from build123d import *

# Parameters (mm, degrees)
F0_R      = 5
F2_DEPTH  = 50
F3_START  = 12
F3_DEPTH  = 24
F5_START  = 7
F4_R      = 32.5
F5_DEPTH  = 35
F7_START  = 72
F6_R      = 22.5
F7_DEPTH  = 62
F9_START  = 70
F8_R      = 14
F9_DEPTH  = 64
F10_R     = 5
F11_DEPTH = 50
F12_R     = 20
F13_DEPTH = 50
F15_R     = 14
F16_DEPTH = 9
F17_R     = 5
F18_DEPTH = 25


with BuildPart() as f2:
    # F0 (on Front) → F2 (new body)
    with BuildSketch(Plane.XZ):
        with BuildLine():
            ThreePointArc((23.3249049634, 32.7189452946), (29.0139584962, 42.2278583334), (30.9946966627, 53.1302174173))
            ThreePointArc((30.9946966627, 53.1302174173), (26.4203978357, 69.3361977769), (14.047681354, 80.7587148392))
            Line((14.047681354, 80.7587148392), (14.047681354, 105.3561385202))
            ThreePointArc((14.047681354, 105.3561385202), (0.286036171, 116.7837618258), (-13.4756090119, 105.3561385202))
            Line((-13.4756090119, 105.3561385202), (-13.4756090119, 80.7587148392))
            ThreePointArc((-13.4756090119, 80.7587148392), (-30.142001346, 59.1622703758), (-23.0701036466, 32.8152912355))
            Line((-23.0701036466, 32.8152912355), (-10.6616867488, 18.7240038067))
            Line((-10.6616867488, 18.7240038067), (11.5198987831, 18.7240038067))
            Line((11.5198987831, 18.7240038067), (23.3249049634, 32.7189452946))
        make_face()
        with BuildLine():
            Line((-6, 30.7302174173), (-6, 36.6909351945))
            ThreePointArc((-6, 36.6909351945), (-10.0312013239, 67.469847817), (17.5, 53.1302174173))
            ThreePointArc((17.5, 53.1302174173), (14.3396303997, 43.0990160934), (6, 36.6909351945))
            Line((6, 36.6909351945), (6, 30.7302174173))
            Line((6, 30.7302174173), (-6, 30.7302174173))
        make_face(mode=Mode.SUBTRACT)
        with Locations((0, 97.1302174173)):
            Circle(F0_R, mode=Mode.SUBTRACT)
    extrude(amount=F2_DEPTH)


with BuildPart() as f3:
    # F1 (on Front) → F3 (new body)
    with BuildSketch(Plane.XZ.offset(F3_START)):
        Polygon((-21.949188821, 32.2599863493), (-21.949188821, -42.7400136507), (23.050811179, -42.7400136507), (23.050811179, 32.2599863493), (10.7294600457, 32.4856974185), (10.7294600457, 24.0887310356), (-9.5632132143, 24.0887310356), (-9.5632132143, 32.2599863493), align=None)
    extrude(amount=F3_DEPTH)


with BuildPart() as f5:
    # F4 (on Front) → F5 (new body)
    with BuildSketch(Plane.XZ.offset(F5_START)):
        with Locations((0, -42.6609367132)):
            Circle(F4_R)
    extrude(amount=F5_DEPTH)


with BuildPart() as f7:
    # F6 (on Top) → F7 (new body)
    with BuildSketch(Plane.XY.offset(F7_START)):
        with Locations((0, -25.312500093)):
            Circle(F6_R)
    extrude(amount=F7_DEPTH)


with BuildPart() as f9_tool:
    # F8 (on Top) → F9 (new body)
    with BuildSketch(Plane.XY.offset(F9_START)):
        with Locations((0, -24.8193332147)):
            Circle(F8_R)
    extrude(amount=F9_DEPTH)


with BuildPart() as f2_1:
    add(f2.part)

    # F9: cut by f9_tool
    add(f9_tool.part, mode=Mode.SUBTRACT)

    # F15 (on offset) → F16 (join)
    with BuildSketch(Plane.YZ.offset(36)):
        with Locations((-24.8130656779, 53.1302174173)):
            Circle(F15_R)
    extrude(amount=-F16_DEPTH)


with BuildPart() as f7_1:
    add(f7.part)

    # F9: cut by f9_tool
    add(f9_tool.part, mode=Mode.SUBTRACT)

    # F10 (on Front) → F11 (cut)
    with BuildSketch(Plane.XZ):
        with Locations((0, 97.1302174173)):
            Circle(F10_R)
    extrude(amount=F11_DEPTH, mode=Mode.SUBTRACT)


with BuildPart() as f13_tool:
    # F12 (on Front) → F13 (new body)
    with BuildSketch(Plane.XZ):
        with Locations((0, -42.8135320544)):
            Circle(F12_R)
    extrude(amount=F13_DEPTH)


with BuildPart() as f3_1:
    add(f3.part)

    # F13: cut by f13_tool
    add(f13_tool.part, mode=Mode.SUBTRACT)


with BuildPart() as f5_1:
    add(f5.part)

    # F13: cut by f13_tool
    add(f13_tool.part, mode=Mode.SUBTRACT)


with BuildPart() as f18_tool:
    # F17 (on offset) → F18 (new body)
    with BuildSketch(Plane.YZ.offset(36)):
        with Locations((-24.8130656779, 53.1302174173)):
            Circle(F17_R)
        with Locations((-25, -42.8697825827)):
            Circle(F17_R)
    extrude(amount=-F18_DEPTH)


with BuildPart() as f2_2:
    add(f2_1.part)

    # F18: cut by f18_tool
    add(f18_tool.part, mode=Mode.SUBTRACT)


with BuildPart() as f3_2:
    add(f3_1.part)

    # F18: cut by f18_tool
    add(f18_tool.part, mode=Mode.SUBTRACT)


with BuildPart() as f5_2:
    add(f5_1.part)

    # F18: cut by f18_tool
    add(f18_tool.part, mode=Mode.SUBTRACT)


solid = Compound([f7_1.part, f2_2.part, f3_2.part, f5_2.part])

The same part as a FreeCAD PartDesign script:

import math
import FreeCAD as App
import Part
import Sketcher
from FreeCAD import Vector
Q = App.Units.Quantity

doc = App.newDocument("Part")
body = doc.addObject("PartDesign::Body", "Body")

# Sketch on XZ plane
sketch1 = body.newObject("Sketcher::SketchObject", "Sketch")
sketch1.AttachmentSupport = (doc.getObject("XZ_Plane"), [""])
sketch1.MapMode = "FlatFace"
sketch1.addGeometry(Part.ArcOfCircle(Part.Circle(Vector(0, 53, 0), Vector(0, 0, 1), 31), math.radians(-41), math.radians(0)), False)
sketch1.addGeometry(Part.ArcOfCircle(Part.Circle(Vector(0, 53, 0), Vector(0, 0, 1), 31), math.radians(0), math.radians(63)), False)
sketch1.addGeometry(Part.LineSegment(Vector(14, 81, 0), Vector(14, 105, 0)), False)
sketch1.addGeometry(Part.ArcOfCircle(Part.Circle(Vector(0, 103, 0), Vector(0, 0, 1), 14), math.radians(11), math.radians(169)), False)
sketch1.addGeometry(Part.LineSegment(Vector(-13, 105, 0), Vector(-13, 81, 0)), False)
sketch1.addGeometry(Part.ArcOfCircle(Part.Circle(Vector(0, 53, 0), Vector(0, 0, 1), 31), math.radians(116), math.radians(221)), False)
sketch1.addGeometry(Part.LineSegment(Vector(-23, 33, 0), Vector(-11, 19, 0)), False)
sketch1.addGeometry(Part.LineSegment(Vector(-11, 19, 0), Vector(12, 19, 0)), False)
sketch1.addGeometry(Part.LineSegment(Vector(12, 19, 0), Vector(23, 33, 0)), False)
sketch1.addGeometry(Part.LineSegment(Vector(6, 31, 0), Vector(-6, 31, 0)), False)
sketch1.addGeometry(Part.LineSegment(Vector(-6, 31, 0), Vector(-6, 37, 0)), False)
sketch1.addGeometry(Part.ArcOfCircle(Part.Circle(Vector(0, 53, 0), Vector(0, 0, 1), 18), math.radians(0), math.radians(250)), False)
sketch1.addGeometry(Part.ArcOfCircle(Part.Circle(Vector(0, 53, 0), Vector(0, 0, 1), 18), math.radians(-70), math.radians(0)), False)
sketch1.addGeometry(Part.LineSegment(Vector(6, 37, 0), Vector(6, 31, 0)), False)
sketch1.addGeometry(Part.Circle(Vector(0, 97, 0), Vector(0, 0, 1), 5), False)
sketch1.addConstraint(Sketcher.Constraint("Tangent", 0, 2, 1, 1))
sketch1.addConstraint(Sketcher.Constraint("Coincident", 1, 2, 2, 1))
sketch1.addConstraint(Sketcher.Constraint("Coincident", 2, 2, 3, 1))
sketch1.addConstraint(Sketcher.Constraint("Coincident", 3, 2, 4, 1))
sketch1.addConstraint(Sketcher.Constraint("Coincident", 4, 2, 5, 1))
sketch1.addConstraint(Sketcher.Constraint("Tangent", 5, 2, 6, 1))
sketch1.addConstraint(Sketcher.Constraint("Coincident", 6, 2, 7, 1))
sketch1.addConstraint(Sketcher.Constraint("Coincident", 7, 2, 8, 1))
sketch1.addConstraint(Sketcher.Constraint("Coincident", 8, 2, 0, 1))
sketch1.addConstraint(Sketcher.Constraint("Coincident", 9, 2, 10, 1))
sketch1.addConstraint(Sketcher.Constraint("Coincident", 10, 2, 11, 2))
sketch1.addConstraint(Sketcher.Constraint("Tangent", 11, 1, 12, 2))
sketch1.addConstraint(Sketcher.Constraint("Coincident", 12, 1, 13, 1))
sketch1.addConstraint(Sketcher.Constraint("Coincident", 13, 2, 9, 1))
sketch1.addConstraint(Sketcher.Constraint("Vertical", 2))
sketch1.addConstraint(Sketcher.Constraint("Vertical", 4))
sketch1.addConstraint(Sketcher.Constraint("Horizontal", 7))
sketch1.addConstraint(Sketcher.Constraint("Horizontal", 9))
sketch1.addConstraint(Sketcher.Constraint("Vertical", 10))
sketch1.addConstraint(Sketcher.Constraint("Vertical", 13))
sketch1.addConstraint(Sketcher.Constraint("Coincident", 5, 3, 0, 3))
sketch1.addConstraint(Sketcher.Constraint("Coincident", 11, 3, 0, 3))
sketch1.addConstraint(Sketcher.Constraint("Equal", 0, 1))
sketch1.addConstraint(Sketcher.Constraint("Equal", 11, 12))
sketch1.addConstraint(Sketcher.Constraint("Symmetric", 10, 2, 12, 1, -2))
sketch1.addConstraint(Sketcher.Constraint("PointOnObject", 14, 3, -2))
sketch1.addConstraint(Sketcher.Constraint("Horizontal", 12, 3, 0, 2))
sketch1.addConstraint(Sketcher.Constraint("Horizontal", 2, 2, 3, 2))
sketch1.addConstraint(Sketcher.Constraint("Horizontal", 1, 2, 4, 2))
sketch1.addConstraint(Sketcher.Constraint("Horizontal", 0, 2, 11, 1))
sketch1.addConstraint(Sketcher.Constraint("Diameter", 14, Q("10 mm")))
sketch1.addConstraint(Sketcher.Constraint("Radius", 3, Q("14 mm")))
sketch1.addConstraint(Sketcher.Constraint("Radius", 11, Q("17.5 mm")))
sketch1.addConstraint(Sketcher.Constraint("DistanceX", 9, 2, 9, 1, Q("12 mm")))
sketch1.addConstraint(Sketcher.Constraint("DistanceY", 0, 3, 14, 3, Q("44 mm")))
sketch1.addConstraint(Sketcher.Constraint("DistanceY", 9, 2, 0, 3, Q("22.4 mm")))
sketch1.addConstraint(Sketcher.Constraint("Radius", 0, Q("30.994697 mm")))
sketch1.addConstraint(Sketcher.Constraint("Radius", 5, Q("30.739647 mm")))
sketch1.addConstraint(Sketcher.Constraint("DistanceX", -1, 1, 7, 2, Q("11.519899 mm")))
sketch1.addConstraint(Sketcher.Constraint("Distance", 8, Q("18.30892 mm")))
sketch1.addConstraint(Sketcher.Constraint("DistanceX", 7, 1, 7, 2, Q("22.181586 mm")))
sketch1.addConstraint(Sketcher.Constraint("DistanceY", 2, 1, 2, 2, Q("24.597424 mm")))
sketch1.addConstraint(Sketcher.Constraint("DistanceY", -1, 1, 3, 3, Q("102.783762 mm")))
sketch1.addConstraint(Sketcher.Constraint("DistanceX", -1, 1, 2, 2, Q("14.047681 mm")))
sketch1.addConstraint(Sketcher.Constraint("DistanceY", -1, 1, 5, 2, Q("32.815291 mm")))
pad1 = body.newObject("PartDesign::Pad", "Pad")
pad1.Profile = sketch1
pad1.Length = 50
body2 = doc.addObject("PartDesign::Body", "Body001")

# Sketch on XZ plane
sketch2 = body2.newObject("Sketcher::SketchObject", "Sketch001")
sketch2.AttachmentSupport = (doc.getObject("XZ_Plane001"), [""])
sketch2.MapMode = "FlatFace"
sketch2.AttachmentOffset = App.Placement(Vector(0, 0, 12), App.Rotation())
sketch2.addGeometry(Part.LineSegment(Vector(-21.949189, 32.259986, 0), Vector(-21.949189, -42.740014, 0)), False)
sketch2.addGeometry(Part.LineSegment(Vector(-21.949189, -42.740014, 0), Vector(23.050811, -42.740014, 0)), False)
sketch2.addGeometry(Part.LineSegment(Vector(23.050811, -42.740014, 0), Vector(23.050811, 32.259986, 0)), False)
sketch2.addGeometry(Part.LineSegment(Vector(23.050811, 32.259986, 0), Vector(10.72946, 32.485697, 0)), False)
sketch2.addGeometry(Part.LineSegment(Vector(10.72946, 32.485697, 0), Vector(10.72946, 24.088731, 0)), False)
sketch2.addGeometry(Part.LineSegment(Vector(10.72946, 24.088731, 0), Vector(-9.563213, 24.088731, 0)), False)
sketch2.addGeometry(Part.LineSegment(Vector(-9.563213, 24.088731, 0), Vector(-9.563213, 32.259986, 0)), False)
sketch2.addGeometry(Part.LineSegment(Vector(-9.563213, 32.259986, 0), Vector(-21.949189, 32.259986, 0)), False)
sketch2.addConstraint(Sketcher.Constraint("Coincident", 0, 2, 1, 1))
sketch2.addConstraint(Sketcher.Constraint("Coincident", 1, 2, 2, 1))
sketch2.addConstraint(Sketcher.Constraint("Coincident", 2, 2, 3, 1))
sketch2.addConstraint(Sketcher.Constraint("Coincident", 3, 2, 4, 1))
sketch2.addConstraint(Sketcher.Constraint("Coincident", 4, 2, 5, 1))
sketch2.addConstraint(Sketcher.Constraint("Coincident", 5, 2, 6, 1))
sketch2.addConstraint(Sketcher.Constraint("Coincident", 6, 2, 7, 1))
sketch2.addConstraint(Sketcher.Constraint("Coincident", 7, 2, 0, 1))
sketch2.addConstraint(Sketcher.Constraint("Vertical", 0))
sketch2.addConstraint(Sketcher.Constraint("Horizontal", 1))
sketch2.addConstraint(Sketcher.Constraint("Vertical", 2))
sketch2.addConstraint(Sketcher.Constraint("Vertical", 4))
sketch2.addConstraint(Sketcher.Constraint("Horizontal", 5))
sketch2.addConstraint(Sketcher.Constraint("Vertical", 6))
sketch2.addConstraint(Sketcher.Constraint("Horizontal", 7))
sketch2.addConstraint(Sketcher.Constraint("Horizontal", 2, 2, 6, 2))
sketch2.addConstraint(Sketcher.Constraint("DistanceX", 1, 1, 1, 2, Q("45 mm")))
sketch2.addConstraint(Sketcher.Constraint("DistanceY", 0, 2, 0, 1, Q("75 mm")))
sketch2.addConstraint(Sketcher.Constraint("Distance", 3, Q("12.323418 mm")))
sketch2.addConstraint(Sketcher.Constraint("DistanceX", 5, 2, 5, 1, Q("20.292673 mm")))
sketch2.addConstraint(Sketcher.Constraint("DistanceX", 7, 2, 7, 1, Q("12.385976 mm")))
sketch2.addConstraint(Sketcher.Constraint("DistanceY", 4, 2, 4, 1, Q("8.396966 mm")))
sketch2.addConstraint(Sketcher.Constraint("DistanceX", 0, 2, -1, 1, Q("21.949189 mm")))
sketch2.addConstraint(Sketcher.Constraint("DistanceY", -1, 1, 4, 2, Q("24.088731 mm")))
pad2 = body2.newObject("PartDesign::Pad", "Pad001")
pad2.Profile = sketch2
pad2.Length = 24
body3 = doc.addObject("PartDesign::Body", "Body002")

# Sketch on XZ plane
sketch3 = body3.newObject("Sketcher::SketchObject", "Sketch002")
sketch3.AttachmentSupport = (doc.getObject("XZ_Plane002"), [""])
sketch3.MapMode = "FlatFace"
sketch3.AttachmentOffset = App.Placement(Vector(0, 0, 7), App.Rotation())
sketch3.addGeometry(Part.Circle(Vector(0, -43, 0), Vector(0, 0, 1), 32), False)
sketch3.addConstraint(Sketcher.Constraint("PointOnObject", 0, 3, -2))
sketch3.addConstraint(Sketcher.Constraint("Diameter", 0, Q("65 mm")))
sketch3.addConstraint(Sketcher.Constraint("DistanceY", 0, 3, -1, 1, Q("42.660937 mm")))
pad3 = body3.newObject("PartDesign::Pad", "Pad002")
pad3.Profile = sketch3
pad3.Length = 35
body4 = doc.addObject("PartDesign::Body", "Body003")

# Sketch on XY plane
sketch4 = body4.newObject("Sketcher::SketchObject", "Sketch003")
sketch4.AttachmentSupport = (doc.getObject("XY_Plane003"), [""])
sketch4.MapMode = "FlatFace"
sketch4.AttachmentOffset = App.Placement(Vector(0, 0, 72), App.Rotation())
sketch4.addGeometry(Part.Circle(Vector(0, -25, 0), Vector(0, 0, 1), 22), False)
sketch4.addConstraint(Sketcher.Constraint("PointOnObject", 0, 3, -2))
sketch4.addConstraint(Sketcher.Constraint("Diameter", 0, Q("45 mm")))
sketch4.addConstraint(Sketcher.Constraint("DistanceY", 0, 3, -1, 1, Q("25.3125 mm")))
pad4 = body4.newObject("PartDesign::Pad", "Pad003")
pad4.Profile = sketch4
pad4.Length = 62
body5 = doc.addObject("PartDesign::Body", "Body004")

# Sketch on XY plane
sketch5 = body5.newObject("Sketcher::SketchObject", "Sketch004")
sketch5.AttachmentSupport = (doc.getObject("XY_Plane004"), [""])
sketch5.MapMode = "FlatFace"
sketch5.AttachmentOffset = App.Placement(Vector(0, 0, 70), App.Rotation())
sketch5.addGeometry(Part.Circle(Vector(0, -25, 0), Vector(0, 0, 1), 14), False)
sketch5.addConstraint(Sketcher.Constraint("PointOnObject", 0, 3, -2))
sketch5.addConstraint(Sketcher.Constraint("Diameter", 0, Q("28 mm")))
sketch5.addConstraint(Sketcher.Constraint("DistanceY", 0, 3, -1, 1, Q("24.819333 mm")))
pad5 = body5.newObject("PartDesign::Pad", "Pad004")
pad5.Profile = sketch5
pad5.Length = 64
doc.recompute()

body6 = doc.addObject("PartDesign::Body", "Body005")
body6.BaseFeature = body5
boolean = body.newObject("PartDesign::Boolean", "Boolean")
boolean.Type = "Cut"
boolean.addObjects([body6])
doc.recompute()

# Sketch on YZ plane
sketch6 = body.newObject("Sketcher::SketchObject", "Sketch005")
sketch6.AttachmentSupport = (doc.getObject("YZ_Plane"), [""])
sketch6.MapMode = "FlatFace"
sketch6.AttachmentOffset = App.Placement(Vector(0, 0, 36), App.Rotation())
sketch6.addGeometry(Part.Circle(Vector(-25, 53, 0), Vector(0, 0, 1), 14), False)
sketch6.addConstraint(Sketcher.Constraint("Diameter", 0, Q("28 mm")))
sketch6.addConstraint(Sketcher.Constraint("DistanceX", 0, 3, -1, 1, Q("24.813066 mm")))
sketch6.addConstraint(Sketcher.Constraint("DistanceY", -1, 1, 0, 3, Q("53.130217 mm")))
pad6 = body.newObject("PartDesign::Pad", "Pad005")
pad6.Profile = sketch6
pad6.Length = 9
pad6.Reversed = True
doc.recompute()

boolean2 = body4.newObject("PartDesign::Boolean", "Boolean001")
boolean2.Type = "Cut"
boolean2.addObjects([body5])

# Sketch on XZ plane
sketch7 = body4.newObject("Sketcher::SketchObject", "Sketch006")
sketch7.AttachmentSupport = (doc.getObject("XZ_Plane003"), [""])
sketch7.MapMode = "FlatFace"
sketch7.addGeometry(Part.Circle(Vector(0, 97, 0), Vector(0, 0, 1), 5), False)
sketch7.addConstraint(Sketcher.Constraint("PointOnObject", 0, 3, -2))
sketch7.addConstraint(Sketcher.Constraint("Diameter", 0, Q("10 mm")))
sketch7.addConstraint(Sketcher.Constraint("DistanceY", -1, 1, 0, 3, Q("97.130217 mm")))
pocket1 = body4.newObject("PartDesign::Pocket", "Pocket")
pocket1.Profile = sketch7
pocket1.Length = 50
pocket1.Reversed = True
body7 = doc.addObject("PartDesign::Body", "Body006")

# Sketch on XZ plane
sketch8 = body7.newObject("Sketcher::SketchObject", "Sketch007")
sketch8.AttachmentSupport = (doc.getObject("XZ_Plane006"), [""])
sketch8.MapMode = "FlatFace"
sketch8.addGeometry(Part.Circle(Vector(0, -43, 0), Vector(0, 0, 1), 20), False)
sketch8.addConstraint(Sketcher.Constraint("PointOnObject", 0, 3, -2))
sketch8.addConstraint(Sketcher.Constraint("Diameter", 0, Q("40 mm")))
sketch8.addConstraint(Sketcher.Constraint("DistanceY", 0, 3, -1, 1, Q("42.813532 mm")))
pad7 = body7.newObject("PartDesign::Pad", "Pad006")
pad7.Profile = sketch8
pad7.Length = 50
doc.recompute()

body8 = doc.addObject("PartDesign::Body", "Body007")
body8.BaseFeature = body7
boolean3 = body2.newObject("PartDesign::Boolean", "Boolean002")
boolean3.Type = "Cut"
boolean3.addObjects([body8])
doc.recompute()

boolean4 = body3.newObject("PartDesign::Boolean", "Boolean003")
boolean4.Type = "Cut"
boolean4.addObjects([body7])
body9 = doc.addObject("PartDesign::Body", "Body008")
body9.AllowCompound = True

# Sketch on YZ plane
sketch9 = body9.newObject("Sketcher::SketchObject", "Sketch008")
sketch9.AttachmentSupport = (doc.getObject("YZ_Plane008"), [""])
sketch9.MapMode = "FlatFace"
sketch9.AttachmentOffset = App.Placement(Vector(0, 0, 36), App.Rotation())
sketch9.addGeometry(Part.Circle(Vector(-25, 53, 0), Vector(0, 0, 1), 5), False)
sketch9.addGeometry(Part.Circle(Vector(-25, -43, 0), Vector(0, 0, 1), 5), False)
sketch9.addConstraint(Sketcher.Constraint("Equal", 0, 1))
sketch9.addConstraint(Sketcher.Constraint("Diameter", 0, Q("10 mm")))
sketch9.addConstraint(Sketcher.Constraint("DistanceX", 1, 3, -1, 1, Q("25 mm")))
sketch9.addConstraint(Sketcher.Constraint("DistanceY", 1, 3, 0, 3, Q("96 mm")))
sketch9.addConstraint(Sketcher.Constraint("DistanceX", 0, 3, -1, 1, Q("24.813066 mm")))
sketch9.addConstraint(Sketcher.Constraint("DistanceY", -1, 1, 0, 3, Q("53.130217 mm")))
pad8 = body9.newObject("PartDesign::Pad", "Pad007")
pad8.Profile = sketch9
pad8.Length = 25
pad8.Reversed = True
doc.recompute()

body10 = doc.addObject("PartDesign::Body", "Body009")
body10.BaseFeature = body9
boolean5 = body.newObject("PartDesign::Boolean", "Boolean004")
boolean5.Type = "Cut"
boolean5.addObjects([body10])
doc.recompute()

body11 = doc.addObject("PartDesign::Body", "Body010")
body11.BaseFeature = body9
boolean6 = body2.newObject("PartDesign::Boolean", "Boolean005")
boolean6.Type = "Cut"
boolean6.addObjects([body11])
doc.recompute()

boolean7 = body3.newObject("PartDesign::Boolean", "Boolean006")
boolean7.Type = "Cut"
boolean7.addObjects([body9])

doc.recompute()
